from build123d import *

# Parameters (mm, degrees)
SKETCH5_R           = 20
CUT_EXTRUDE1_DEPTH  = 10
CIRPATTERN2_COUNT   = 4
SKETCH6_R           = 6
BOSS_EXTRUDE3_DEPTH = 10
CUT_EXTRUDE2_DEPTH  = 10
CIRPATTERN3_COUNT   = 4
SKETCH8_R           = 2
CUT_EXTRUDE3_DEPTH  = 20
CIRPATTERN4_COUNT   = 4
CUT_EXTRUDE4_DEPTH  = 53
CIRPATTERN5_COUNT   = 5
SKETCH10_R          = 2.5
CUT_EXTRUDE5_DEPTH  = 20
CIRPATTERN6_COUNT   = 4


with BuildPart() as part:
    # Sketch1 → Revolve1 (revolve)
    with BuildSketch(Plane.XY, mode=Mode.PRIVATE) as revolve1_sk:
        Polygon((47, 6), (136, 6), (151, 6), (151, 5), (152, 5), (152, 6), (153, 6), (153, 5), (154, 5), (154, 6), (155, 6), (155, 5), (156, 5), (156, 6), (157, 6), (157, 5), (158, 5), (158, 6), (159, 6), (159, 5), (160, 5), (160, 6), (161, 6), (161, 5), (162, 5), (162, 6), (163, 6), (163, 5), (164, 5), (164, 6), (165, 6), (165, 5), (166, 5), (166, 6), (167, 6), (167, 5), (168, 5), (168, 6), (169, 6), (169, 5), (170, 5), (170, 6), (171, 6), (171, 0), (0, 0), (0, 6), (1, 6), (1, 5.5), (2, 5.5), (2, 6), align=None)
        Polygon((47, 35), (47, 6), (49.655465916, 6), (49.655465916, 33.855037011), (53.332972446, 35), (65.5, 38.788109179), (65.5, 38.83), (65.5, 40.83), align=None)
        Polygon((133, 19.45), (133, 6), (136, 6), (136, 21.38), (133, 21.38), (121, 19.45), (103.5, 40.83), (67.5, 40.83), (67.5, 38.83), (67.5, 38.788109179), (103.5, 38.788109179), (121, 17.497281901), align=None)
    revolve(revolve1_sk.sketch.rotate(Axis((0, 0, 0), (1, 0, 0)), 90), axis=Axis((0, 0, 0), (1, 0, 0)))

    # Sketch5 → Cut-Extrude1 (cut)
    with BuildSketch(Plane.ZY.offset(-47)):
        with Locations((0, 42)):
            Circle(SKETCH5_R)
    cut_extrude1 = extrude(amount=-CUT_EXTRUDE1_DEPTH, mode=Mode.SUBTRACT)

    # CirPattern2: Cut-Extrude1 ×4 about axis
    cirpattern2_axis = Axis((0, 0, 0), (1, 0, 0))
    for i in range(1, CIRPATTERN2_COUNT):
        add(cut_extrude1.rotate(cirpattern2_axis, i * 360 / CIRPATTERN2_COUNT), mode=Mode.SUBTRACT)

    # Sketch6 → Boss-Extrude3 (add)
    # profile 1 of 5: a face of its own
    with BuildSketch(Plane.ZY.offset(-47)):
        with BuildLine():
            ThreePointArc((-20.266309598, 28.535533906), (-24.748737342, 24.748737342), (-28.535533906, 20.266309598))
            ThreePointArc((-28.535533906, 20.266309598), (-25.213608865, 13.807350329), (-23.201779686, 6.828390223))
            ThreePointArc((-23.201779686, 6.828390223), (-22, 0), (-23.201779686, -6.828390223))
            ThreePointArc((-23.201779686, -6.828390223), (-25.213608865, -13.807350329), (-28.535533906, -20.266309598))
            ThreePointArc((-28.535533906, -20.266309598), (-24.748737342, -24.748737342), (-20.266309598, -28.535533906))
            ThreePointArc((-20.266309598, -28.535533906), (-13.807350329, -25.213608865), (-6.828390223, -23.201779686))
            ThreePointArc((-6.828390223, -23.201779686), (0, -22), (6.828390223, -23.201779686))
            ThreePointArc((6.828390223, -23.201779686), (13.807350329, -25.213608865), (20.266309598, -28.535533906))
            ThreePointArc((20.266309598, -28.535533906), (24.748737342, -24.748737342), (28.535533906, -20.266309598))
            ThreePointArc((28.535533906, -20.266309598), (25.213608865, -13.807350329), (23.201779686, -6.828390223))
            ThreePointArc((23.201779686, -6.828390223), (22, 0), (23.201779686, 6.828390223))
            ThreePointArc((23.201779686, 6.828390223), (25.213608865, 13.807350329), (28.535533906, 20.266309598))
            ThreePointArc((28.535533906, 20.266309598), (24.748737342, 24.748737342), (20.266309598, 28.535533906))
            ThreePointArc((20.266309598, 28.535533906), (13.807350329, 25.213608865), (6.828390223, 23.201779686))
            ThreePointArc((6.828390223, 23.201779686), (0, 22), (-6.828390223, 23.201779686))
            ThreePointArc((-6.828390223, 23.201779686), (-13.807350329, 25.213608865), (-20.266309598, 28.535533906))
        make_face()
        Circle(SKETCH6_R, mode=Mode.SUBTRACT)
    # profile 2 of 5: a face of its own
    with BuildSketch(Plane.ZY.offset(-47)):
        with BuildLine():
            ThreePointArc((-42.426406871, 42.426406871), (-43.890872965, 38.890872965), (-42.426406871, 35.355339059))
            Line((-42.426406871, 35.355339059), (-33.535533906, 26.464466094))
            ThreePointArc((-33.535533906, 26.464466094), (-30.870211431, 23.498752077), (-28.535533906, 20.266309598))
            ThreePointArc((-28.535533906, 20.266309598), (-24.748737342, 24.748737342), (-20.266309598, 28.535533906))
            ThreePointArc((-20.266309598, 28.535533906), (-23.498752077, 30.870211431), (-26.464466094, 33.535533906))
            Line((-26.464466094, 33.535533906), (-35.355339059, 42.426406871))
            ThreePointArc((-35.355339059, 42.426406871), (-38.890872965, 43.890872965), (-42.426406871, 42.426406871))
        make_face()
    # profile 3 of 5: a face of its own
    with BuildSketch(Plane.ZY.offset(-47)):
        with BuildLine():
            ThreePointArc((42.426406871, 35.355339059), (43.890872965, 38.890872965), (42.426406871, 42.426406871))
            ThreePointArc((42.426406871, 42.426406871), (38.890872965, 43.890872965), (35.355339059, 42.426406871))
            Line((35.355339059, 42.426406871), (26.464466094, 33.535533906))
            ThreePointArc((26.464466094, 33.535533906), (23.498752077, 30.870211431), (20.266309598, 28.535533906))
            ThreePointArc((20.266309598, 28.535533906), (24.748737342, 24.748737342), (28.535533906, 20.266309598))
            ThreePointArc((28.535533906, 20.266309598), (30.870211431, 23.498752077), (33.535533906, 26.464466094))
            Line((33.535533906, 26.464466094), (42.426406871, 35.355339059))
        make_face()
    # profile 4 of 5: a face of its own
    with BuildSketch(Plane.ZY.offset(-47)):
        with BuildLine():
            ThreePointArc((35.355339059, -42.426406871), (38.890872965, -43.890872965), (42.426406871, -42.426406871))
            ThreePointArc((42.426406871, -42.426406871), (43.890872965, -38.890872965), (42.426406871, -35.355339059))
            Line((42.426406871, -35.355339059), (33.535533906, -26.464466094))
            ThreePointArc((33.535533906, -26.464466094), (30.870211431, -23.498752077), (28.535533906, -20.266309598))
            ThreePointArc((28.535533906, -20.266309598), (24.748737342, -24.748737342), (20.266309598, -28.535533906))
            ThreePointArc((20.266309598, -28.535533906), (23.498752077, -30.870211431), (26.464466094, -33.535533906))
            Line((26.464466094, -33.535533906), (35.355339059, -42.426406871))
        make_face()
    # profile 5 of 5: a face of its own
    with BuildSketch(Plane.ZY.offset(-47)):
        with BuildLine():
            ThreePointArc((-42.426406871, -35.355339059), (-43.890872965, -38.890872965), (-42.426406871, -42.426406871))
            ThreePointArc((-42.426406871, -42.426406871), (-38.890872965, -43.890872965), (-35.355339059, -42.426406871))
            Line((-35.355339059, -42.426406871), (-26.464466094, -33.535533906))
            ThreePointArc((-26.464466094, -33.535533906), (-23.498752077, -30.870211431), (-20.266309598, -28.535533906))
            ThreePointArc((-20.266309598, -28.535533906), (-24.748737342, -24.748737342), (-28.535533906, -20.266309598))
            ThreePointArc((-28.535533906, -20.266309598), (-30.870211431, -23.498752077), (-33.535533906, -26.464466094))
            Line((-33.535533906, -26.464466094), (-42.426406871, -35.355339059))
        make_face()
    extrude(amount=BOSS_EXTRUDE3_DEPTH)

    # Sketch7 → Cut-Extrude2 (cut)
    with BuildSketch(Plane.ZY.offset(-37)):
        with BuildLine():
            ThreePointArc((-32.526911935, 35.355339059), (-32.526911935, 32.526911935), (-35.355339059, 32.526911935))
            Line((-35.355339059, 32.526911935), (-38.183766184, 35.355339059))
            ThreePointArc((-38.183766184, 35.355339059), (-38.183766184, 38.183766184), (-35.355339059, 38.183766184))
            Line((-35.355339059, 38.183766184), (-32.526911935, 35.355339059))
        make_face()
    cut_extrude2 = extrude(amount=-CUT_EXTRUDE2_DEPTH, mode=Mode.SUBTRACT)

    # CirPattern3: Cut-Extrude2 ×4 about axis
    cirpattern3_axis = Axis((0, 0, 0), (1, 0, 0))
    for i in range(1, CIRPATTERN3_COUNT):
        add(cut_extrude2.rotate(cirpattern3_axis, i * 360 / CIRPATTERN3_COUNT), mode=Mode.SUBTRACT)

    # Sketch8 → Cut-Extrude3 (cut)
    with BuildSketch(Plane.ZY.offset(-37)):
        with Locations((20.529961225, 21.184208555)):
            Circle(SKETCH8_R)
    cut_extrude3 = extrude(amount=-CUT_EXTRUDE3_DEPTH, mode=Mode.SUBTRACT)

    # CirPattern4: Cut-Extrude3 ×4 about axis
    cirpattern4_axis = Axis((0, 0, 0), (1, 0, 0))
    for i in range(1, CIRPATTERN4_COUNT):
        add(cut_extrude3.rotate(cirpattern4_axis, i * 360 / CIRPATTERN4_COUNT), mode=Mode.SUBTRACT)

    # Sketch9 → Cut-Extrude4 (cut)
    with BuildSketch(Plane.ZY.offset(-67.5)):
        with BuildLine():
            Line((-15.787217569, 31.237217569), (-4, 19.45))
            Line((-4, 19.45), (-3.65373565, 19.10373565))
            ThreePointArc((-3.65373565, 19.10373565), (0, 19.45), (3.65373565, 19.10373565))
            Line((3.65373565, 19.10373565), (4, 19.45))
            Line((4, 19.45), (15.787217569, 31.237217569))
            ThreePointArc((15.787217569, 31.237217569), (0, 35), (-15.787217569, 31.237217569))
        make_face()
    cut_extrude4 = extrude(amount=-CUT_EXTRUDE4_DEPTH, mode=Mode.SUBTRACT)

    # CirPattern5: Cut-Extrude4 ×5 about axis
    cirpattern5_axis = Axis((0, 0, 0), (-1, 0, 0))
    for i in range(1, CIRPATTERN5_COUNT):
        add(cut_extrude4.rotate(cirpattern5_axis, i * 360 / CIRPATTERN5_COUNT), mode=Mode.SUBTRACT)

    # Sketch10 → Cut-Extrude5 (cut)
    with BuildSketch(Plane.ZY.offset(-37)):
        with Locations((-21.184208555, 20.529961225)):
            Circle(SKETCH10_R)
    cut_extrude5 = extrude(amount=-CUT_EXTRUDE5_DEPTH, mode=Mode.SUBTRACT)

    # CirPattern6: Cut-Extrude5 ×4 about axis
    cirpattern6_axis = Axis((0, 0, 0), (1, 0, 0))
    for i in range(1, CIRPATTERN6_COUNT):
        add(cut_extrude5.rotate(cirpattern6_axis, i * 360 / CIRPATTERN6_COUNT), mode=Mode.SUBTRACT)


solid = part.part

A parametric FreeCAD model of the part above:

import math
import FreeCAD as App
import Part
import Sketcher

V = App.Vector
Q = App.Units.Quantity


def add_polygon(sketch, points):
    """Adds a closed chain of lines whose ends are joined by coincident constraints."""
    first, n = sketch.GeometryCount, len(points)
    for a, b in zip(points, points[1:] + points[:1]):
        sketch.addGeometry(Part.LineSegment(App.Vector(*a, 0), App.Vector(*b, 0)), False)
    for i in range(n):
        sketch.addConstraint(Sketcher.Constraint("Coincident", first + i, 2, first + (i + 1) % n, 1))

doc = App.newDocument("Part")
params = doc.addObject("Spreadsheet::Sheet", "Params")
for row, (alias, value) in enumerate([
    ("sketch1_width", "15 mm"),
    ("sketch1_width2", "3 mm"),
    ("sketch1_width3", "36 mm"),
    ("sketch1_width4", "45 mm"),
    ("sketch1_width5", "1 mm"),
    ("revolution_angle", "360 deg"),
    ("sketch2_diameter", "40 mm"),
    ("pocket1_length", "10 mm"),
    ("sketch3_diameter", "12 mm"),
    ("sketch3_radius", "5 mm"),
    ("sketch3_radius2", "20 mm"),
    ("pad1_length", "10 mm"),
    ("sketch4_radius", "2 mm"),
    ("pocket2_length", "10 mm"),
    ("sketch5_diameter", "4 mm"),
    ("pocket3_length", "20 mm"),
    ("sketch6_radius", "35 mm"),
    ("sketch6_radius2", "19.45 mm"),
    ("pocket4_length", "53 mm"),
    ("sketch7_diameter", "5 mm"),
    ("pocket5_length", "20 mm"),
], start=1):
    params.set(f"A{row}", alias)
    params.set(f"B{row}", "=" + value)
    params.setAlias(f"B{row}", alias)

body = doc.addObject("PartDesign::Body", "Body")

# Sketch on XY plane
sketch1 = body.newObject("Sketcher::SketchObject", "Sketch")
sketch1.AttachmentSupport = (doc.getObject("XY_Plane"), [""])
sketch1.MapMode = "FlatFace"
add_polygon(sketch1, [(151, 6), (136, 6), (136, 21.38), (133, 21.38), (121, 19.45), (103.5, 40.83), (67.5, 40.83), (67.5, 38.788109), (103.5, 38.788109), (121, 17.497282), (133, 19.45), (133, 6), (49.655466, 6), (49.655466, 33.855037), (53.332972, 35), (65.5, 38.788109), (65.5, 40.83), (47, 35), (47, 6), (2, 6), (2, 5.5), (1, 5.5), (1, 6), (0, 6), (0, 0), (171, 0), (171, 6), (170, 6), (170, 5), (169, 5), (169, 6), (168, 6), (168, 5), (167, 5), (167, 6), (166, 6), (166, 5), (165, 5), (165, 6), (164, 6), (164, 5), (163, 5), (163, 6), (162, 6), (162, 5), (161, 5), (161, 6), (160, 6), (160, 5), (159, 5), (159, 6), (158, 6), (158, 5), (157, 5), (157, 6), (156, 6), (156, 5), (155, 5), (155, 6), (154, 6), (154, 5), (153, 5), (153, 6), (152, 6), (152, 5), (151, 5)])  # lines 0-65
sketch1.addConstraint(Sketcher.Constraint("Horizontal", 0))
sketch1.addConstraint(Sketcher.Constraint("Vertical", 1))
sketch1.addConstraint(Sketcher.Constraint("Horizontal", 2))
sketch1.addConstraint(Sketcher.Constraint("Horizontal", 5))
sketch1.addConstraint(Sketcher.Constraint("Vertical", 6))
sketch1.addConstraint(Sketcher.Constraint("Horizontal", 7))
sketch1.addConstraint(Sketcher.Constraint("Vertical", 10))
sketch1.addConstraint(Sketcher.Constraint("Horizontal", 11))
sketch1.addConstraint(Sketcher.Constraint("Vertical", 12))
sketch1.addConstraint(Sketcher.Constraint("Vertical", 15))
sketch1.addConstraint(Sketcher.Constraint("Vertical", 17))
sketch1.addConstraint(Sketcher.Constraint("Horizontal", 18))
sketch1.addConstraint(Sketcher.Constraint("Vertical", 19))
sketch1.addConstraint(Sketcher.Constraint("Horizontal", 20))
sketch1.addConstraint(Sketcher.Constraint("Vertical", 21))
sketch1.addConstraint(Sketcher.Constraint("Horizontal", 22))
sketch1.addConstraint(Sketcher.Constraint("Vertical", 23))
sketch1.addConstraint(Sketcher.Constraint("Horizontal", 24))
sketch1.addConstraint(Sketcher.Constraint("Vertical", 25))
sketch1.addConstraint(Sketcher.Constraint("Horizontal", 26))
sketch1.addConstraint(Sketcher.Constraint("Vertical", 27))
sketch1.addConstraint(Sketcher.Constraint("Horizontal", 28))
sketch1.addConstraint(Sketcher.Constraint("Vertical", 29))
sketch1.addConstraint(Sketcher.Constraint("Horizontal", 30))
sketch1.addConstraint(Sketcher.Constraint("Vertical", 31))
sketch1.addConstraint(Sketcher.Constraint("Horizontal", 32))
sketch1.addConstraint(Sketcher.Constraint("Vertical", 33))
sketch1.addConstraint(Sketcher.Constraint("Horizontal", 34))
sketch1.addConstraint(Sketcher.Constraint("Vertical", 35))
sketch1.addConstraint(Sketcher.Constraint("Horizontal", 36))
sketch1.addConstraint(Sketcher.Constraint("Vertical", 37))
sketch1.addConstraint(Sketcher.Constraint("Horizontal", 38))
sketch1.addConstraint(Sketcher.Constraint("Vertical", 39))
sketch1.addConstraint(Sketcher.Constraint("Horizontal", 40))
sketch1.addConstraint(Sketcher.Constraint("Vertical", 41))
sketch1.addConstraint(Sketcher.Constraint("Horizontal", 42))
sketch1.addConstraint(Sketcher.Constraint("Vertical", 43))
sketch1.addConstraint(Sketcher.Constraint("Horizontal", 44))
sketch1.addConstraint(Sketcher.Constraint("Vertical", 45))
sketch1.addConstraint(Sketcher.Constraint("Horizontal", 46))
sketch1.addConstraint(Sketcher.Constraint("Vertical", 47))
sketch1.addConstraint(Sketcher.Constraint("Horizontal", 48))
sketch1.addConstraint(Sketcher.Constraint("Vertical", 49))
sketch1.addConstraint(Sketcher.Constraint("Horizontal", 50))
sketch1.addConstraint(Sketcher.Constraint("Vertical", 51))
sketch1.addConstraint(Sketcher.Constraint("Horizontal", 52))
sketch1.addConstraint(Sketcher.Constraint("Vertical", 53))
sketch1.addConstraint(Sketcher.Constraint("Horizontal", 54))
sketch1.addConstraint(Sketcher.Constraint("Vertical", 55))
sketch1.addConstraint(Sketcher.Constraint("Horizontal", 56))
sketch1.addConstraint(Sketcher.Constraint("Vertical", 57))
sketch1.addConstraint(Sketcher.Constraint("Horizontal", 58))
sketch1.addConstraint(Sketcher.Constraint("Vertical", 59))
sketch1.addConstraint(Sketcher.Constraint("Horizontal", 60))
sketch1.addConstraint(Sketcher.Constraint("Vertical", 61))
sketch1.addConstraint(Sketcher.Constraint("Horizontal", 62))
sketch1.addConstraint(Sketcher.Constraint("Vertical", 63))
sketch1.addConstraint(Sketcher.Constraint("Horizontal", 64))
sketch1.addConstraint(Sketcher.Constraint("Vertical", 65))
sketch1.addConstraint(Sketcher.Constraint("Coincident", 23, 2, -1, 1))
sketch1.addConstraint(Sketcher.Constraint("Parallel", 13, 14))
sketch1.addConstraint(Sketcher.Constraint("Horizontal", 3, 2, 9, 2))
sketch1.addConstraint(Sketcher.Constraint("Horizontal", 0, 2, 10, 2))
sketch1.addConstraint(Sketcher.Constraint("Horizontal", 7, 2, 14, 2))
sketch1.addConstraint(Sketcher.Constraint("Horizontal", 5, 2, 15, 2))
sketch1.addConstraint(Sketcher.Constraint("Horizontal", 13, 2, 16, 2))
sketch1.addConstraint(Sketcher.Constraint("Horizontal", 11, 2, 17, 2))
sketch1.addConstraint(Sketcher.Constraint("Horizontal", 18, 2, 21, 2))
sketch1.addConstraint(Sketcher.Constraint("Horizontal", 22, 2, 25, 2))
sketch1.addConstraint(Sketcher.Constraint("Horizontal", 26, 2, 29, 2))
sketch1.addConstraint(Sketcher.Constraint("Horizontal", 28, 2, 31, 2))
sketch1.addConstraint(Sketcher.Constraint("Horizontal", 30, 2, 33, 2))
sketch1.addConstraint(Sketcher.Constraint("Horizontal", 32, 2, 35, 2))
sketch1.addConstraint(Sketcher.Constraint("Horizontal", 34, 2, 37, 2))
sketch1.addConstraint(Sketcher.Constraint("Horizontal", 36, 2, 39, 2))
sketch1.addConstraint(Sketcher.Constraint("Horizontal", 38, 2, 41, 2))
sketch1.addConstraint(Sketcher.Constraint("Horizontal", 40, 2, 43, 2))
sketch1.addConstraint(Sketcher.Constraint("Horizontal", 42, 2, 45, 2))
sketch1.addConstraint(Sketcher.Constraint("Horizontal", 44, 2, 47, 2))
sketch1.addConstraint(Sketcher.Constraint("Horizontal", 46, 2, 49, 2))
sketch1.addConstraint(Sketcher.Constraint("Horizontal", 48, 2, 51, 2))
sketch1.addConstraint(Sketcher.Constraint("Horizontal", 50, 2, 53, 2))
sketch1.addConstraint(Sketcher.Constraint("Horizontal", 52, 2, 55, 2))
sketch1.addConstraint(Sketcher.Constraint("Horizontal", 54, 2, 57, 2))
sketch1.addConstraint(Sketcher.Constraint("Horizontal", 56, 2, 59, 2))
sketch1.addConstraint(Sketcher.Constraint("Horizontal", 58, 2, 61, 2))
sketch1.addConstraint(Sketcher.Constraint("Horizontal", 60, 2, 63, 2))
sketch1.addConstraint(Sketcher.Constraint("Vertical", 4, 2, 7, 2))
sketch1.addConstraint(Sketcher.Constraint("Vertical", 3, 2, 8, 2))
sketch1.addConstraint(Sketcher.Constraint("Vertical", 2, 2, 9, 2))
sketch1.addConstraint(Sketcher.Constraint("Equal", 20, 22))
sketch1.addConstraint(Sketcher.Constraint("Equal", 22, 26))
sketch1.addConstraint(Sketcher.Constraint("Equal", 26, 28))
sketch1.addConstraint(Sketcher.Constraint("Equal", 28, 30))
sketch1.addConstraint(Sketcher.Constraint("Equal", 30, 32))
sketch1.addConstraint(Sketcher.Constraint("Equal", 32, 34))
sketch1.addConstraint(Sketcher.Constraint("Equal", 34, 36))
sketch1.addConstraint(Sketcher.Constraint("Equal", 36, 38))
sketch1.addConstraint(Sketcher.Constraint("Equal", 38, 40))
sketch1.addConstraint(Sketcher.Constraint("Equal", 40, 42))
sketch1.addConstraint(Sketcher.Constraint("Equal", 42, 44))
sketch1.addConstraint(Sketcher.Constraint("Equal", 44, 46))
sketch1.addConstraint(Sketcher.Constraint("Equal", 46, 48))
sketch1.addConstraint(Sketcher.Constraint("Equal", 48, 50))
sketch1.addConstraint(Sketcher.Constraint("Equal", 50, 52))
sketch1.addConstraint(Sketcher.Constraint("Equal", 52, 54))
sketch1.addConstraint(Sketcher.Constraint("Equal", 54, 56))
sketch1.addConstraint(Sketcher.Constraint("Equal", 56, 58))
sketch1.addConstraint(Sketcher.Constraint("Equal", 58, 60))
sketch1.addConstraint(Sketcher.Constraint("Equal", 60, 62))
sketch1.addConstraint(Sketcher.Constraint("Equal", 62, 64))
sketch1.addConstraint(Sketcher.Constraint("Equal", 64, 27))
sketch1.addConstraint(Sketcher.Constraint("DistanceX", 0, 2, 0, 1, Q("15 mm")))
sketch1.addConstraint(Sketcher.Constraint("DistanceX", 2, 2, 2, 1, Q("3 mm")))
sketch1.addConstraint(Sketcher.Constraint("DistanceX", 5, 2, 5, 1, Q("36 mm")))
sketch1.addConstraint(Sketcher.Constraint("DistanceX", 18, 2, 18, 1, Q("45 mm")))
sketch1.addConstraint(Sketcher.Constraint("DistanceX", 20, 2, 20, 1, Q("1 mm")))
sketch1.addConstraint(Sketcher.Constraint("DistanceX", 24, 1, 24, 2, Q("171 mm")))
sketch1.addConstraint(Sketcher.Constraint("DistanceY", 17, 2, 17, 1, Q("29 mm")))
sketch1.addConstraint(Sketcher.Constraint("DistanceY", 23, 2, 23, 1, Q("6 mm")))
sketch1.addConstraint(Sketcher.Constraint("DistanceY", 19, 2, 19, 1, Q("0.5 mm")))
sketch1.addConstraint(Sketcher.Constraint("DistanceX", -1, 1, 3, 2, Q("121 mm")))
sketch1.addConstraint(Sketcher.Constraint("DistanceY", 1, 1, 1, 2, Q("15.38 mm")))
sketch1.addConstraint(Sketcher.Constraint("DistanceY", 10, 2, 10, 1, Q("13.45 mm")))
sketch1.addConstraint(Sketcher.Constraint("DistanceX", -1, 1, 4, 2, Q("103.5 mm")))
sketch1.addConstraint(Sketcher.Constraint("DistanceX", -1, 1, 14, 2, Q("65.5 mm")))
sketch1.addConstraint(Sketcher.Constraint("DistanceY", -1, 1, 4, 2, Q("40.83 mm")))
sketch1.addConstraint(Sketcher.Constraint("DistanceY", 6, 2, 6, 1, Q("2.041891 mm")))
sketch1.addConstraint(Sketcher.Constraint("Distance", 9, Q("12.157841 mm")))
sketch1.addConstraint(Sketcher.Constraint("Distance", 14, Q("12.74309 mm")))
sketch1.addConstraint(Sketcher.Constraint("DistanceX", 11, 2, 11, 1, Q("83.344534 mm")))
sketch1.setExpression("Constraints[178]", "Params.sketch1_width")
sketch1.setExpression("Constraints[179]", "Params.sketch1_width2")
sketch1.setExpression("Constraints[180]", "Params.sketch1_width3")
sketch1.setExpression("Constraints[181]", "Params.sketch1_width4")
sketch1.setExpression("Constraints[182]", "Params.sketch1_width5")
revolution = body.newObject("PartDesign::Revolution", "Revolution")
revolution.Profile = sketch1
revolution.ReferenceAxis = (sketch1, ["H_Axis"])
revolution.setExpression("Angle", "Params.revolution_angle")

# Sketch on YZ plane
sketch2 = body.newObject("Sketcher::SketchObject", "Sketch001")
sketch2.AttachmentSupport = (doc.getObject("YZ_Plane"), [""])
sketch2.MapMode = "FlatFace"
sketch2.AttachmentOffset = App.Placement(V(0, 0, 47), App.Rotation())
sketch2.addGeometry(Part.Circle(V(42, 0, 0), V(0, 0, 1), 20), False)
sketch2.addConstraint(Sketcher.Constraint("PointOnObject", 0, 3, -1))
sketch2.addConstraint(Sketcher.Constraint("Diameter", 0, Q("40 mm")))
sketch2.addConstraint(Sketcher.Constraint("DistanceX", -1, 1, 0, 3, Q("42 mm")))
sketch2.setExpression("Constraints[1]", "Params.sketch2_diameter")
pocket1 = body.newObject("PartDesign::Pocket", "Pocket")
pocket1.Profile = sketch2
pocket1.setExpression("Length", "Params.pocket1_length")
pocket1.Reversed = True
doc.recompute()

polarpattern = body.newObject("PartDesign::PolarPattern", "PolarPattern")
polarpattern.Originals = [pocket1]
polarpattern.Axis = (doc.getObject("X_Axis"), [""])
polarpattern.Angle = 360
polarpattern.Occurrences = 4
body.Tip = polarpattern

# Sketch on YZ plane
sketch3 = body.newObject("Sketcher::SketchObject", "Sketch002")
sketch3.AttachmentSupport = (doc.getObject("YZ_Plane"), [""])
sketch3.MapMode = "FlatFace"
sketch3.AttachmentOffset = App.Placement(V(0, 0, 47), App.Rotation())
sketch3.addGeometry(Part.ArcOfCircle(Part.Circle(V(60, 0, 0), V(0, 0, 1), 37.426407), math.radians(-169.487592), math.radians(-147.214355)), False)
sketch3.addGeometry(Part.ArcOfCircle(Part.Circle(V(60, 0, 0), V(0, 0, 1), 37.426407), math.radians(-147.214355), math.radians(-135)), False)
sketch3.addGeometry(Part.LineSegment(V(33.535534, -26.464466, 0), V(42.426407, -35.355339, 0)), False)
sketch3.addGeometry(Part.ArcOfCircle(Part.Circle(V(38.890873, -38.890873, 0), V(0, 0, 1), 5), math.radians(-45), math.radians(45)), False)
sketch3.addGeometry(Part.ArcOfCircle(Part.Circle(V(38.890873, -38.890873, 0), V(0, 0, 1), 5), math.radians(-135), math.radians(-45)), False)
sketch3.addGeometry(Part.LineSegment(V(35.355339, -42.426407, 0), V(26.464466, -33.535534, 0)), False)
sketch3.addGeometry(Part.ArcOfCircle(Part.Circle(V(0, -60, 0), V(0, 0, 1), 37.426407), math.radians(45), math.radians(57.214355)), False)
sketch3.addGeometry(Part.ArcOfCircle(Part.Circle(V(0, -60, 0), V(0, 0, 1), 37.426407), math.radians(57.214355), math.radians(79.487592)), False)
sketch3.addGeometry(Part.ArcOfCircle(Part.Circle(V(0, -42, 0), V(0, 0, 1), 20), math.radians(70.036618), math.radians(109.963382)), False)
sketch3.addGeometry(Part.ArcOfCircle(Part.Circle(V(0, -60, 0), V(0, 0, 1), 37.426407), math.radians(100.512408), math.radians(122.785645)), False)
sketch3.addGeometry(Part.ArcOfCircle(Part.Circle(V(0, -60, 0), V(0, 0, 1), 37.426407), math.radians(122.785645), math.radians(135)), False)
sketch3.addGeometry(Part.LineSegment(V(-26.464466, -33.535534, 0), V(-35.355339, -42.426407, 0)), False)
sketch3.addGeometry(Part.ArcOfCircle(Part.Circle(V(-38.890873, -38.890873, 0), V(0, 0, 1), 5), math.radians(-135), math.radians(-45)), False)
sketch3.addGeometry(Part.ArcOfCircle(Part.Circle(V(-38.890873, -38.890873, 0), V(0, 0, 1), 5), math.radians(135), math.radians(225)), False)
sketch3.addGeometry(Part.LineSegment(V(-42.426407, -35.355339, 0), V(-33.535534, -26.464466, 0)), False)
sketch3.addGeometry(Part.ArcOfCircle(Part.Circle(V(-60, 0, 0), V(0, 0, 1), 37.426407), math.radians(-45), math.radians(-32.785645)), False)
sketch3.addGeometry(Part.ArcOfCircle(Part.Circle(V(-60, 0, 0), V(0, 0, 1), 37.426407), math.radians(-32.785645), math.radians(-10.512408)), False)
sketch3.addGeometry(Part.ArcOfCircle(Part.Circle(V(-42, 0, 0), V(0, 0, 1), 20), math.radians(-19.963382), math.radians(19.963382)), False)
sketch3.addGeometry(Part.ArcOfCircle(Part.Circle(V(-60, 0, 0), V(0, 0, 1), 37.426407), math.radians(10.512408), math.radians(32.785645)), False)
sketch3.addGeometry(Part.ArcOfCircle(Part.Circle(V(-60, 0, 0), V(0, 0, 1), 37.426407), math.radians(32.785645), math.radians(45)), False)
sketch3.addGeometry(Part.LineSegment(V(-33.535534, 26.464466, 0), V(-42.426407, 35.355339, 0)), False)
sketch3.addGeometry(Part.ArcOfCircle(Part.Circle(V(-38.890873, 38.890873, 0), V(0, 0, 1), 5), math.radians(135), math.radians(225)), False)
sketch3.addGeometry(Part.ArcOfCircle(Part.Circle(V(-38.890873, 38.890873, 0), V(0, 0, 1), 5), math.radians(45), math.radians(135)), False)
sketch3.addGeometry(Part.LineSegment(V(-35.355339, 42.426407, 0), V(-26.464466, 33.535534, 0)), False)
sketch3.addGeometry(Part.ArcOfCircle(Part.Circle(V(0, 60, 0), V(0, 0, 1), 37.426407), math.radians(-135), math.radians(-122.785645)), False)
sketch3.addGeometry(Part.ArcOfCircle(Part.Circle(V(0, 60, 0), V(0, 0, 1), 37.426407), math.radians(-122.785645), math.radians(-100.512408)), False)
sketch3.addGeometry(Part.ArcOfCircle(Part.Circle(V(0, 42, 0), V(0, 0, 1), 20), math.radians(-109.963382), math.radians(-70.036618)), False)
sketch3.addGeometry(Part.ArcOfCircle(Part.Circle(V(0, 60, 0), V(0, 0, 1), 37.426407), math.radians(-79.487592), math.radians(-57.214355)), False)
sketch3.addGeometry(Part.ArcOfCircle(Part.Circle(V(0, 60, 0), V(0, 0, 1), 37.426407), math.radians(-57.214355), math.radians(-45)), False)
sketch3.addGeometry(Part.LineSegment(V(26.464466, 33.535534, 0), V(35.355339, 42.426407, 0)), False)
sketch3.addGeometry(Part.ArcOfCircle(Part.Circle(V(38.890873, 38.890873, 0), V(0, 0, 1), 5), math.radians(45), math.radians(135)), False)
sketch3.addGeometry(Part.ArcOfCircle(Part.Circle(V(38.890873, 38.890873, 0), V(0, 0, 1), 5), math.radians(-45), math.radians(45)), False)
sketch3.addGeometry(Part.LineSegment(V(42.426407, 35.355339, 0), V(33.535534, 26.464466, 0)), False)
sketch3.addGeometry(Part.ArcOfCircle(Part.Circle(V(60, 0, 0), V(0, 0, 1), 37.426407), math.radians(135), math.radians(147.214355)), False)
sketch3.addGeometry(Part.ArcOfCircle(Part.Circle(V(60, 0, 0), V(0, 0, 1), 37.426407), math.radians(147.214355), math.radians(169.487592)), False)
sketch3.addGeometry(Part.ArcOfCircle(Part.Circle(V(42, 0, 0), V(0, 0, 1), 20), math.radians(160.036618), math.radians(199.963382)), False)
sketch3.addGeometry(Part.Circle(V(0, 0, 0), V(0, 0, 1), 6), False)
sketch3.addConstraint(Sketcher.Constraint("Tangent", 0, 2, 1, 1))
sketch3.addConstraint(Sketcher.Constraint("Tangent", 1, 2, 2, 1))
sketch3.addConstraint(Sketcher.Constraint("Tangent", 2, 2, 3, 2))
sketch3.addConstraint(Sketcher.Constraint("Tangent", 3, 1, 4, 2))
sketch3.addConstraint(Sketcher.Constraint("Tangent", 4, 1, 5, 1))
sketch3.addConstraint(Sketcher.Constraint("Tangent", 5, 2, 6, 1))
sketch3.addConstraint(Sketcher.Constraint("Tangent", 6, 2, 7, 1))
sketch3.addConstraint(Sketcher.Constraint("Coincident", 7, 2, 8, 1))
sketch3.addConstraint(Sketcher.Constraint("Coincident", 8, 2, 9, 1))
sketch3.addConstraint(Sketcher.Constraint("Tangent", 9, 2, 10, 1))
sketch3.addConstraint(Sketcher.Constraint("Tangent", 10, 2, 11, 1))
sketch3.addConstraint(Sketcher.Constraint("Tangent", 11, 2, 12, 2))
sketch3.addConstraint(Sketcher.Constraint("Tangent", 12, 1, 13, 2))
sketch3.addConstraint(Sketcher.Constraint("Tangent", 13, 1, 14, 1))
sketch3.addConstraint(Sketcher.Constraint("Tangent", 14, 2, 15, 1))
sketch3.addConstraint(Sketcher.Constraint("Tangent", 15, 2, 16, 1))
sketch3.addConstraint(Sketcher.Constraint("Coincident", 16, 2, 17, 1))
sketch3.addConstraint(Sketcher.Constraint("Coincident", 17, 2, 18, 1))
sketch3.addConstraint(Sketcher.Constraint("Tangent", 18, 2, 19, 1))
sketch3.addConstraint(Sketcher.Constraint("Tangent", 19, 2, 20, 1))
sketch3.addConstraint(Sketcher.Constraint("Tangent", 20, 2, 21, 2))
sketch3.addConstraint(Sketcher.Constraint("Tangent", 21, 1, 22, 2))
sketch3.addConstraint(Sketcher.Constraint("Tangent", 22, 1, 23, 1))
sketch3.addConstraint(Sketcher.Constraint("Tangent", 23, 2, 24, 1))
sketch3.addConstraint(Sketcher.Constraint("Tangent", 24, 2, 25, 1))
sketch3.addConstraint(Sketcher.Constraint("Coincident", 25, 2, 26, 1))
sketch3.addConstraint(Sketcher.Constraint("Coincident", 26, 2, 27, 1))
sketch3.addConstraint(Sketcher.Constraint("Tangent", 27, 2, 28, 1))
sketch3.addConstraint(Sketcher.Constraint("Tangent", 28, 2, 29, 1))
sketch3.addConstraint(Sketcher.Constraint("Tangent", 29, 2, 30, 2))
sketch3.addConstraint(Sketcher.Constraint("Tangent", 30, 1, 31, 2))
sketch3.addConstraint(Sketcher.Constraint("Tangent", 31, 1, 32, 1))
sketch3.addConstraint(Sketcher.Constraint("Tangent", 32, 2, 33, 1))
sketch3.addConstraint(Sketcher.Constraint("Tangent", 33, 2, 34, 1))
sketch3.addConstraint(Sketcher.Constraint("Coincident", 34, 2, 35, 1))
sketch3.addConstraint(Sketcher.Constraint("Coincident", 35, 2, 0, 1))
sketch3.addConstraint(Sketcher.Constraint("Coincident", 36, 3, -1, 1))
sketch3.addConstraint(Sketcher.Constraint("Coincident", 9, 3, 6, 3))
sketch3.addConstraint(Sketcher.Constraint("Coincident", 18, 3, 15, 3))
sketch3.addConstraint(Sketcher.Constraint("Coincident", 27, 3, 24, 3))
sketch3.addConstraint(Sketcher.Constraint("Coincident", 33, 3, 0, 3))
sketch3.addConstraint(Sketcher.Constraint("Equal", 0, 1))
sketch3.addConstraint(Sketcher.Constraint("Equal", 3, 4))
sketch3.addConstraint(Sketcher.Constraint("Equal", 1, 6))
sketch3.addConstraint(Sketcher.Constraint("Equal", 6, 7))
sketch3.addConstraint(Sketcher.Constraint("Equal", 7, 9))
sketch3.addConstraint(Sketcher.Constraint("Equal", 9, 10))
sketch3.addConstraint(Sketcher.Constraint("Equal", 4, 12))
sketch3.addConstraint(Sketcher.Constraint("Equal", 12, 13))
sketch3.addConstraint(Sketcher.Constraint("Equal", 10, 15))
sketch3.addConstraint(Sketcher.Constraint("Equal", 15, 16))
sketch3.addConstraint(Sketcher.Constraint("Equal", 8, 17))
sketch3.addConstraint(Sketcher.Constraint("Equal", 16, 18))
sketch3.addConstraint(Sketcher.Constraint("Equal", 18, 19))
sketch3.addConstraint(Sketcher.Constraint("Equal", 13, 21))
sketch3.addConstraint(Sketcher.Constraint("Equal", 21, 22))
sketch3.addConstraint(Sketcher.Constraint("Equal", 19, 24))
sketch3.addConstraint(Sketcher.Constraint("Equal", 24, 25))
sketch3.addConstraint(Sketcher.Constraint("Equal", 17, 26))
sketch3.addConstraint(Sketcher.Constraint("Equal", 25, 27))
sketch3.addConstraint(Sketcher.Constraint("Equal", 27, 28))
sketch3.addConstraint(Sketcher.Constraint("Equal", 22, 30))
sketch3.addConstraint(Sketcher.Constraint("Equal", 30, 31))
sketch3.addConstraint(Sketcher.Constraint("Equal", 28, 33))
sketch3.addConstraint(Sketcher.Constraint("Equal", 33, 34))
sketch3.addConstraint(Sketcher.Constraint("Equal", 26, 35))
sketch3.addConstraint(Sketcher.Constraint("Symmetric", 0, 3, 15, 3, -1, 1))
sketch3.addConstraint(Sketcher.Constraint("Symmetric", 3, 3, 21, 3, -1, 1))
sketch3.addConstraint(Sketcher.Constraint("Symmetric", 6, 3, 24, 3, -1, 1))
sketch3.addConstraint(Sketcher.Constraint("Symmetric", 8, 3, 26, 3, -1, 1))
sketch3.addConstraint(Sketcher.Constraint("Symmetric", 12, 3, 30, 3, -1, 1))
sketch3.addConstraint(Sketcher.Constraint("Symmetric", 17, 3, 35, 3, -1, 1))
sketch3.addConstraint(Sketcher.Constraint("Symmetric", 3, 3, 12, 3, -2))
sketch3.addConstraint(Sketcher.Constraint("Symmetric", 7, 2, 8, 2, -2))
sketch3.addConstraint(Sketcher.Constraint("Symmetric", 0, 2, 15, 2, -2))
sketch3.addConstraint(Sketcher.Constraint("PointOnObject", 17, 3, -1))
sketch3.addConstraint(Sketcher.Constraint("Parallel", 2, 5))
sketch3.addConstraint(Sketcher.Constraint("Perpendicular", 5, 11))
sketch3.addConstraint(Sketcher.Constraint("Horizontal", 3, 1, 4, 1))
sketch3.addConstraint(Sketcher.Constraint("Horizontal", 6, 2, 9, 2))
sketch3.addConstraint(Sketcher.Constraint("Horizontal", 11, 2, 12, 1))
sketch3.addConstraint(Sketcher.Constraint("Horizontal", 21, 1, 22, 1))
sketch3.addConstraint(Sketcher.Constraint("Horizontal", 24, 2, 27, 2))
sketch3.addConstraint(Sketcher.Constraint("Horizontal", 29, 2, 30, 1))
sketch3.addConstraint(Sketcher.Constraint("Horizontal", 18, 2, 33, 2))
sketch3.addConstraint(Sketcher.Constraint("Vertical", 15, 2, 18, 2))
sketch3.addConstraint(Sketcher.Constraint("Vertical", 9, 2, 24, 2))
sketch3.addConstraint(Sketcher.Constraint("Equal", 2, 5))
sketch3.addConstraint(Sketcher.Constraint("Diameter", 36, Q("12 mm")))
sketch3.addConstraint(Sketcher.Constraint("Radius", 3, Q("5 mm")))
sketch3.addConstraint(Sketcher.Constraint("Radius", 8, Q("20 mm")))
sketch3.addConstraint(Sketcher.Constraint("DistanceX", -1, 1, 0, 3, Q("60 mm")))
sketch3.addConstraint(Sketcher.Constraint("DistanceY", 8, 3, -1, 1, Q("42 mm")))
sketch3.addConstraint(Sketcher.Constraint("DistanceX", 17, 3, -1, 1, Q("42 mm")))
sketch3.addConstraint(Sketcher.Constraint("DistanceY", 0, 2, -1, 1, Q("20.26631 mm")))
sketch3.addConstraint(Sketcher.Constraint("DistanceY", 2, 2, -1, 1, Q("35.355339 mm")))
sketch3.addConstraint(Sketcher.Constraint("DistanceX", -1, 1, 6, 2, Q("20.26631 mm")))
sketch3.setExpression("Constraints[88]", "Params.sketch3_diameter")
sketch3.setExpression("Constraints[89]", "Params.sketch3_radius")
sketch3.setExpression("Constraints[90]", "Params.sketch3_radius2")
pad1 = body.newObject("PartDesign::Pad", "Pad")
pad1.Profile = sketch3
pad1.setExpression("Length", "Params.pad1_length")
pad1.Reversed = True

# Sketch on YZ plane
sketch4 = body.newObject("Sketcher::SketchObject", "Sketch003")
sketch4.AttachmentSupport = (doc.getObject("YZ_Plane"), [""])
sketch4.MapMode = "FlatFace"
sketch4.AttachmentOffset = App.Placement(V(0, 0, 37), App.Rotation())
sketch4.addGeometry(Part.ArcOfCircle(Part.Circle(V(33.941125, -33.941125, 0), V(0, 0, 1), 2), math.radians(45), math.radians(225)), False)
sketch4.addGeometry(Part.LineSegment(V(35.355339, -32.526912, 0), V(38.183766, -35.355339, 0)), False)
sketch4.addGeometry(Part.ArcOfCircle(Part.Circle(V(36.769553, -36.769553, 0), V(0, 0, 1), 2), math.radians(-135), math.radians(45)), False)
sketch4.addGeometry(Part.LineSegment(V(35.355339, -38.183766, 0), V(32.526912, -35.355339, 0)), False)
sketch4.addConstraint(Sketcher.Constraint("Tangent", 0, 1, 1, 1))
sketch4.addConstraint(Sketcher.Constraint("Tangent", 1, 2, 2, 2))
sketch4.addConstraint(Sketcher.Constraint("Tangent", 2, 1, 3, 1))
sketch4.addConstraint(Sketcher.Constraint("Tangent", 3, 2, 0, 2))
sketch4.addConstraint(Sketcher.Constraint("Equal", 0, 2))
sketch4.addConstraint(Sketcher.Constraint("Horizontal", 1, 2, 3, 2))
sketch4.addConstraint(Sketcher.Constraint("Vertical", 0, 1, 2, 1))
sketch4.addConstraint(Sketcher.Constraint("Radius", 0, Q("2 mm")))
sketch4.addConstraint(Sketcher.Constraint("DistanceX", -1, 1, 0, 1, Q("35.355339 mm")))
sketch4.addConstraint(Sketcher.Constraint("DistanceY", 0, 1, -1, 1, Q("32.526912 mm")))
sketch4.setExpression("Constraints[7]", "Params.sketch4_radius")
pocket2 = body.newObject("PartDesign::Pocket", "Pocket001")
pocket2.Profile = sketch4
pocket2.setExpression("Length", "Params.pocket2_length")
pocket2.Reversed = True
doc.recompute()

polarpattern2 = body.newObject("PartDesign::PolarPattern", "PolarPattern001")
polarpattern2.Originals = [pocket2]
polarpattern2.Axis = (doc.getObject("X_Axis"), [""])
polarpattern2.Angle = 360
polarpattern2.Occurrences = 4
body.Tip = polarpattern2

# Sketch on YZ plane
sketch5 = body.newObject("Sketcher::SketchObject", "Sketch004")
sketch5.AttachmentSupport = (doc.getObject("YZ_Plane"), [""])
sketch5.MapMode = "FlatFace"
sketch5.AttachmentOffset = App.Placement(V(0, 0, 37), App.Rotation())
sketch5.addGeometry(Part.Circle(V(21.184209, 20.529961, 0), V(0, 0, 1), 2), False)
sketch5.addConstraint(Sketcher.Constraint("Diameter", 0, Q("4 mm")))
sketch5.addConstraint(Sketcher.Constraint("DistanceX", -1, 1, 0, 3, Q("21.184209 mm")))
sketch5.addConstraint(Sketcher.Constraint("DistanceY", -1, 1, 0, 3, Q("20.529961 mm")))
sketch5.setExpression("Constraints[0]", "Params.sketch5_diameter")
pocket3 = body.newObject("PartDesign::Pocket", "Pocket002")
pocket3.Profile = sketch5
pocket3.setExpression("Length", "Params.pocket3_length")
pocket3.Reversed = True
doc.recompute()

polarpattern3 = body.newObject("PartDesign::PolarPattern", "PolarPattern002")
polarpattern3.Originals = [pocket3]
polarpattern3.Axis = (doc.getObject("X_Axis"), [""])
polarpattern3.Angle = 360
polarpattern3.Occurrences = 4
body.Tip = polarpattern3

# Sketch on YZ plane
sketch6 = body.newObject("Sketcher::SketchObject", "Sketch005")
sketch6.AttachmentSupport = (doc.getObject("YZ_Plane"), [""])
sketch6.MapMode = "FlatFace"
sketch6.AttachmentOffset = App.Placement(V(0, 0, 67.5), App.Rotation())
sketch6.addGeometry(Part.LineSegment(V(31.237218, -15.787218, 0), V(19.103736, -3.653736, 0)), False)
sketch6.addGeometry(Part.ArcOfCircle(Part.Circle(V(0, 0, 0), V(0, 0, 1), 19.45), math.radians(-10.827499), math.radians(10.827499)), False)
sketch6.addGeometry(Part.LineSegment(V(19.103736, 3.653736, 0), V(31.237218, 15.787218, 0)), False)
sketch6.addGeometry(Part.ArcOfCircle(Part.Circle(V(0, 0, 0), V(0, 0, 1), 35), math.radians(-26.811928), math.radians(26.811928)), False)
sketch6.addConstraint(Sketcher.Constraint("Coincident", 0, 2, 1, 1))
sketch6.addConstraint(Sketcher.Constraint("Coincident", 1, 2, 2, 1))
sketch6.addConstraint(Sketcher.Constraint("Coincident", 2, 2, 3, 2))
sketch6.addConstraint(Sketcher.Constraint("Coincident", 3, 1, 0, 1))
sketch6.addConstraint(Sketcher.Constraint("Coincident", 1, 3, -1, 1))
sketch6.addConstraint(Sketcher.Constraint("Coincident", 3, 3, -1, 1))
sketch6.addConstraint(Sketcher.Constraint("Perpendicular", 0, 2))
sketch6.addConstraint(Sketcher.Constraint("Vertical", 0, 2, 1, 2))
sketch6.addConstraint(Sketcher.Constraint("Vertical", 2, 2, 3, 1))
sketch6.addConstraint(Sketcher.Constraint("Radius", 3, Q("35 mm")))
sketch6.addConstraint(Sketcher.Constraint("Radius", 1, Q("19.45 mm")))
sketch6.addConstraint(Sketcher.Constraint("DistanceY", 0, 2, 1, 2, Q("7.307471 mm")))
sketch6.setExpression("Constraints[9]", "Params.sketch6_radius")
sketch6.setExpression("Constraints[10]", "Params.sketch6_radius2")
pocket4 = body.newObject("PartDesign::Pocket", "Pocket003")
pocket4.Profile = sketch6
pocket4.setExpression("Length", "Params.pocket4_length")
pocket4.Reversed = True
doc.recompute()

polarpattern4 = body.newObject("PartDesign::PolarPattern", "PolarPattern003")
polarpattern4.Originals = [pocket4]
polarpattern4.Axis = (doc.getObject("X_Axis"), [""])
polarpattern4.Angle = 360
polarpattern4.Occurrences = 5
body.Tip = polarpattern4

# Sketch on YZ plane
sketch7 = body.newObject("Sketcher::SketchObject", "Sketch006")
sketch7.AttachmentSupport = (doc.getObject("YZ_Plane"), [""])
sketch7.MapMode = "FlatFace"
sketch7.AttachmentOffset = App.Placement(V(0, 0, 37), App.Rotation())
sketch7.addGeometry(Part.Circle(V(20.529961, -21.184209, 0), V(0, 0, 1), 2.5), False)
sketch7.addConstraint(Sketcher.Constraint("Diameter", 0, Q("5 mm")))
sketch7.addConstraint(Sketcher.Constraint("DistanceX", -1, 1, 0, 3, Q("20.529961 mm")))
sketch7.addConstraint(Sketcher.Constraint("DistanceY", 0, 3, -1, 1, Q("21.184209 mm")))
sketch7.setExpression("Constraints[0]", "Params.sketch7_diameter")
pocket5 = body.newObject("PartDesign::Pocket", "Pocket004")
pocket5.Profile = sketch7
pocket5.setExpression("Length", "Params.pocket5_length")
pocket5.Reversed = True
doc.recompute()

polarpattern5 = body.newObject("PartDesign::PolarPattern", "PolarPattern004")
polarpattern5.Originals = [pocket5]
polarpattern5.Axis = (doc.getObject("X_Axis"), [""])
polarpattern5.Angle = 360
polarpattern5.Occurrences = 4
body.Tip = polarpattern5

doc.recompute()
